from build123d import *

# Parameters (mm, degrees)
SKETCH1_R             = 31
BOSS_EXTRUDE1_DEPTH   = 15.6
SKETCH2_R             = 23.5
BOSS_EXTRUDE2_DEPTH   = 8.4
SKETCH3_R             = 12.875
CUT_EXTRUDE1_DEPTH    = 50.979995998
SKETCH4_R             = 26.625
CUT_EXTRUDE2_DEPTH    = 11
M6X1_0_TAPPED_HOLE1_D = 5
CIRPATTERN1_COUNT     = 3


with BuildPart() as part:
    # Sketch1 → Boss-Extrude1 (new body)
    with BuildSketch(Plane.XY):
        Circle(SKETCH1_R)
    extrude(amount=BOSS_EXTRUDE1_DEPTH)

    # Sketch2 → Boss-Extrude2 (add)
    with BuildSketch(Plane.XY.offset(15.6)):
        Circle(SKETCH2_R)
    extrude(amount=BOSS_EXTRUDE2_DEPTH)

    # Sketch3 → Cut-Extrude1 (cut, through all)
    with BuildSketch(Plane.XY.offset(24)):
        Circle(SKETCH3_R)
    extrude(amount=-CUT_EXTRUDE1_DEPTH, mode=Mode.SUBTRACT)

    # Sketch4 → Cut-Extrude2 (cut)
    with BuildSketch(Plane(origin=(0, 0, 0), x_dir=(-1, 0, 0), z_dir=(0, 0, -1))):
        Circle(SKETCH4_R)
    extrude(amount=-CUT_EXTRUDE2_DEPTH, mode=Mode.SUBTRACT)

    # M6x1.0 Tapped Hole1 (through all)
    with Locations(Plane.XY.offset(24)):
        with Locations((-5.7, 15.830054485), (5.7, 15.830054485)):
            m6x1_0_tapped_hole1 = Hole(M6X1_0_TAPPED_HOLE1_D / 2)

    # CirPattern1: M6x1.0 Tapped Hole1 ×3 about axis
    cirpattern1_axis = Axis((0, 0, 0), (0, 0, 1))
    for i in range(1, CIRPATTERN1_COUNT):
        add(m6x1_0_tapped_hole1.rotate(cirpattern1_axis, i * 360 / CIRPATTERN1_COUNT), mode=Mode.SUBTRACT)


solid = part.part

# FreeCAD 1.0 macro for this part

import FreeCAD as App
import Part
import Sketcher

V = App.Vector

doc = App.newDocument("Part")
params = doc.addObject("Spreadsheet::Sheet", "Params")
for row, (alias, value) in enumerate([
    ("sketch1_diameter", "62 mm"),
    ("pad1_length", "15.6 mm"),
    ("sketch2_diameter", "47 mm"),
    ("pad2_length", "8.4 mm"),
    ("sketch3_diameter", "25.75 mm"),
    ("sketch4_diameter", "53.25 mm"),
    ("pocket2_length", "11 mm"),
    ("sketch5_diameter", "5 mm"),
    ("hole_diameter", "5 mm"),
], start=1):
    params.set(f"A{row}", alias)
    params.set(f"B{row}", "=" + value)
    params.setAlias(f"B{row}", alias)

body = doc.addObject("PartDesign::Body", "Body")

# Sketch on XY plane
sketch1 = body.newObject("Sketcher::SketchObject", "Sketch")
sketch1.AttachmentSupport = (doc.getObject("XY_Plane"), [""])
sketch1.MapMode = "FlatFace"
sketch1.addGeometry(Part.Circle(V(0, 0, 0), V(0, 0, 1), 31), False)
sketch1.addConstraint([
    Sketcher.Constraint("Coincident", 0, 3, -1, 1),
    Sketcher.Constraint("Diameter", 0, 62.0),
])
sketch1.setExpression("Constraints[1]", "Params.sketch1_diameter")
pad1 = body.newObject("PartDesign::Pad", "Pad")
pad1.Profile = sketch1
pad1.setExpression("Length", "Params.pad1_length")

# Sketch on XY plane
sketch2 = body.newObject("Sketcher::SketchObject", "Sketch001")
sketch2.AttachmentSupport = (doc.getObject("XY_Plane"), [""])
sketch2.MapMode = "FlatFace"
sketch2.AttachmentOffset = App.Placement(V(0, 0, 15.6), App.Rotation())
sketch2.addGeometry(Part.Circle(V(0, 0, 0), V(0, 0, 1), 24), False)
sketch2.addConstraint([
    Sketcher.Constraint("Coincident", 0, 3, -1, 1),
    Sketcher.Constraint("Diameter", 0, 47.0),
])
sketch2.setExpression("Constraints[1]", "Params.sketch2_diameter")
pad2 = body.newObject("PartDesign::Pad", "Pad001")
pad2.Profile = sketch2
pad2.setExpression("Length", "Params.pad2_length")

# Sketch on XY plane
sketch3 = body.newObject("Sketcher::SketchObject", "Sketch002")
sketch3.AttachmentSupport = (doc.getObject("XY_Plane"), [""])
sketch3.MapMode = "FlatFace"
sketch3.AttachmentOffset = App.Placement(V(0, 0, 24), App.Rotation())
sketch3.addGeometry(Part.Circle(V(0, 0, 0), V(0, 0, 1), 13), False)
sketch3.addConstraint([
    Sketcher.Constraint("Coincident", 0, 3, -1, 1),
    Sketcher.Constraint("Diameter", 0, 25.75),
])
sketch3.setExpression("Constraints[1]", "Params.sketch3_diameter")
pocket1 = body.newObject("PartDesign::Pocket", "Pocket")
pocket1.Profile = sketch3
pocket1.Type = "ThroughAll"

# Sketch on XY plane
sketch4 = body.newObject("Sketcher::SketchObject", "Sketch003")
sketch4.AttachmentSupport = (doc.getObject("XY_Plane"), [""])
sketch4.MapMode = "FlatFace"
sketch4.addGeometry(Part.Circle(V(0, 0, 0), V(0, 0, 1), 27), False)
sketch4.addConstraint([
    Sketcher.Constraint("Coincident", 0, 3, -1, 1),
    Sketcher.Constraint("Diameter", 0, 53.25),
])
sketch4.setExpression("Constraints[1]", "Params.sketch4_diameter")
pocket2 = body.newObject("PartDesign::Pocket", "Pocket001")
pocket2.Profile = sketch4
pocket2.setExpression("Length", "Params.pocket2_length")
pocket2.Reversed = True

# Sketch on XY plane
sketch5 = body.newObject("Sketcher::SketchObject", "Sketch004")
sketch5.AttachmentSupport = (doc.getObject("XY_Plane"), [""])
sketch5.MapMode = "FlatFace"
sketch5.AttachmentOffset = App.Placement(V(0, 0, 24), App.Rotation())
sketch5.addGeometry([
    Part.Circle(V(-5.7, 15.8, 0), V(0, 0, 1), 2.5),
    Part.Circle(V(5.7, 15.8, 0), V(0, 0, 1), 2.5),
], False)
sketch5.addConstraint([
    Sketcher.Constraint("Equal", 0, 1),
    Sketcher.Constraint("Symmetric", 0, 3, 1, 3, -2),
    Sketcher.Constraint("Diameter", 0, 5.0),
    Sketcher.Constraint("DistanceX", 0, 3, -1, 1, 5.7),
    Sketcher.Constraint("DistanceY", -1, 1, 0, 3, 15.830054),
])
sketch5.setExpression("Constraints[2]", "Params.sketch5_diameter")
doc.recompute()
hole = body.newObject("PartDesign::Hole", "Hole")
hole.Profile = sketch5
hole.ThreadType = "None"
hole.setExpression("Diameter", "Params.hole_diameter")
hole.DepthType = "ThroughAll"
doc.recompute()

polarpattern = body.newObject("PartDesign::PolarPattern", "PolarPattern")
polarpattern.Originals = [hole]
polarpattern.Axis = (doc.getObject("Z_Axis"), [""])
polarpattern.Angle = 360
polarpattern.Occurrences = 3
body.Tip = polarpattern

doc.recompute()
